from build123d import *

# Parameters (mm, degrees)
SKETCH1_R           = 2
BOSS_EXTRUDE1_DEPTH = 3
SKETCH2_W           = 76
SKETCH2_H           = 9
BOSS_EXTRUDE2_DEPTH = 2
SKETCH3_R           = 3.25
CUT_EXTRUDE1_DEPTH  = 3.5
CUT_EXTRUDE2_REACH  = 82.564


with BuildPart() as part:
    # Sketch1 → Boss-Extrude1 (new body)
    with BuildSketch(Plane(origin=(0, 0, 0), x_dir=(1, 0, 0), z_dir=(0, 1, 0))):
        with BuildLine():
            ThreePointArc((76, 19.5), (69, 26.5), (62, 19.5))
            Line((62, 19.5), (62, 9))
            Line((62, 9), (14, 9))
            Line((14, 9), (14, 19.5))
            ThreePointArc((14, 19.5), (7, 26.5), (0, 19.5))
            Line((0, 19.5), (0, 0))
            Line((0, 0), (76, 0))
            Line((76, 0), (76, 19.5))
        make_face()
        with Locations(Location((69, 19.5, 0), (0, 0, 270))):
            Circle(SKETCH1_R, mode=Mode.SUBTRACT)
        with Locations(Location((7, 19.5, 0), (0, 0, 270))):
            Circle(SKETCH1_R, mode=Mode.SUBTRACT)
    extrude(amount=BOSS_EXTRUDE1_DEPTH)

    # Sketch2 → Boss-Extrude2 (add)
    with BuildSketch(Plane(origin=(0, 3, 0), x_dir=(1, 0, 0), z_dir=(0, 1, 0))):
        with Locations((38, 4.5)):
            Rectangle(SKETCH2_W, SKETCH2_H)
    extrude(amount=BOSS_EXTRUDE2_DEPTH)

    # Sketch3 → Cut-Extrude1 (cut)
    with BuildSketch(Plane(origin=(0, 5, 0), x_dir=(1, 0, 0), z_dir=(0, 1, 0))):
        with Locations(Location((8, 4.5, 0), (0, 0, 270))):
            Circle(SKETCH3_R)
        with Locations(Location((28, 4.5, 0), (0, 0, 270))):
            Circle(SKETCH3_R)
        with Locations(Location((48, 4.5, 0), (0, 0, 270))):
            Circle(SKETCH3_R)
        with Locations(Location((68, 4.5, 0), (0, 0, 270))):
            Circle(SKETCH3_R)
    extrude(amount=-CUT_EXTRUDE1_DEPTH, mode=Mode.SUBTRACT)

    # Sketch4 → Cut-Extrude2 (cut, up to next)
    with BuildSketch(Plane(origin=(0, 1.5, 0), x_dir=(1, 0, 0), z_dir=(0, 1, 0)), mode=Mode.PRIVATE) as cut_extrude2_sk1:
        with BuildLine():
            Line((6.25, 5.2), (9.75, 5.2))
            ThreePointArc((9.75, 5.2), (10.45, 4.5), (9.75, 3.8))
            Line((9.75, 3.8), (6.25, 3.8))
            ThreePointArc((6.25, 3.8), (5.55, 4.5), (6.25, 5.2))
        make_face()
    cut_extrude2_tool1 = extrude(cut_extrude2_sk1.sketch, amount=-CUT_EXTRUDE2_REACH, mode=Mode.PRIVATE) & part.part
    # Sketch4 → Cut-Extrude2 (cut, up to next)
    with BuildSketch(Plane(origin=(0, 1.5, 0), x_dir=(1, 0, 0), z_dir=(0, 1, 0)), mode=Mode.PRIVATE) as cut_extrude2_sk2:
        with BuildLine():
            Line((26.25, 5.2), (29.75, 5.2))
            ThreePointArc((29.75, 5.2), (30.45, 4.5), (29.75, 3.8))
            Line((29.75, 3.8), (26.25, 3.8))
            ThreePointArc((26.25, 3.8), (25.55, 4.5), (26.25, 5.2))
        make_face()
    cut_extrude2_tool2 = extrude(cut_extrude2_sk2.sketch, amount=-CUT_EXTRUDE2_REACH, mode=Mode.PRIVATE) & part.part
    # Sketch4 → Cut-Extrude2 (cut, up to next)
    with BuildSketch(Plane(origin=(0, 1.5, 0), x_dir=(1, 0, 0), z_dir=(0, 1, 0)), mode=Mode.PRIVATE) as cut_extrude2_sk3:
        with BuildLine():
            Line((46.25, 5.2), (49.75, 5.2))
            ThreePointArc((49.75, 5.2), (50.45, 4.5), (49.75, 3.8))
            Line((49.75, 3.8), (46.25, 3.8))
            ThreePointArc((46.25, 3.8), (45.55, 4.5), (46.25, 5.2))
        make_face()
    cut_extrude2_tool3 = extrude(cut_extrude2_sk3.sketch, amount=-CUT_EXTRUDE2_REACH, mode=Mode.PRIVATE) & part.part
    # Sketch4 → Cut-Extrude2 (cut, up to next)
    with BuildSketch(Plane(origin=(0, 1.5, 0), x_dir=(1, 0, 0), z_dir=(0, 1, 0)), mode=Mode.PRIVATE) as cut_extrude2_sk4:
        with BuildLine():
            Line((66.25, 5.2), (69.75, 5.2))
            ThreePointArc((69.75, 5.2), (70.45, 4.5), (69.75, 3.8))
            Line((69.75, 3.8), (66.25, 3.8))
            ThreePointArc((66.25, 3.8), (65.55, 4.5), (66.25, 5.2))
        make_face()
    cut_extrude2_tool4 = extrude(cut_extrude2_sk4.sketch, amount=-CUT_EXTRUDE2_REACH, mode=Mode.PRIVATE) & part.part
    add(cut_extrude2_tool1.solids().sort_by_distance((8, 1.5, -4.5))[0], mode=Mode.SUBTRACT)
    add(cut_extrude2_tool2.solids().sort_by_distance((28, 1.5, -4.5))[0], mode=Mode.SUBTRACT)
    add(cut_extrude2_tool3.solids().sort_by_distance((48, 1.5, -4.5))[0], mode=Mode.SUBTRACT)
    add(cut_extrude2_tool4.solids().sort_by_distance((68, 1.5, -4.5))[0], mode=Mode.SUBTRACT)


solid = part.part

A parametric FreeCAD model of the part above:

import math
import FreeCAD as App
import Part
import Sketcher
from FreeCAD import Vector


def add_polygon(sketch, points):
    """Adds a closed chain of lines whose ends are joined by coincident constraints."""
    first, n = sketch.GeometryCount, len(points)
    for a, b in zip(points, points[1:] + points[:1]):
        sketch.addGeometry(Part.LineSegment(App.Vector(*a, 0), App.Vector(*b, 0)), False)
    for i in range(n):
        sketch.addConstraint(Sketcher.Constraint("Coincident", first + i, 2, first + (i + 1) % n, 1))

doc = App.newDocument("Part")
body = doc.addObject("PartDesign::Body", "Body")

sketch1 = body.newObject("Sketcher::SketchObject", "Sketch")
sketch1.AttachmentSupport = (doc.getObject("XZ_Plane"), [""])
sketch1.MapMode = "FlatFace"
sketch1.addGeometry(Part.ArcOfCircle(Part.Circle(Vector(69, -19.5, 0), Vector(0, 0, 1), 7), math.radians(180), math.radians(360)), False)
sketch1.addGeometry(Part.LineSegment(Vector(62, -19.5, 0), Vector(62, -9, 0)), False)
sketch1.addGeometry(Part.LineSegment(Vector(62, -9, 0), Vector(14, -9, 0)), False)
sketch1.addGeometry(Part.LineSegment(Vector(14, -9, 0), Vector(14, -19.5, 0)), False)
sketch1.addGeometry(Part.ArcOfCircle(Part.Circle(Vector(7, -19.5, 0), Vector(0, 0, 1), 7), math.radians(180), math.radians(360)), False)
sketch1.addGeometry(Part.LineSegment(Vector(0, -19.5, 0), Vector(0, 0, 0)), False)
sketch1.addGeometry(Part.LineSegment(Vector(0, 0, 0), Vector(76, 0, 0)), False)
sketch1.addGeometry(Part.LineSegment(Vector(76, 0, 0), Vector(76, -19.5, 0)), False)
sketch1.addGeometry(Part.Circle(Vector(7, -19.5, 0), Vector(0, 0, 1), 2), False)
sketch1.addGeometry(Part.Circle(Vector(69, -19.5, 0), Vector(0, 0, 1), 2), False)
sketch1.addConstraint(Sketcher.Constraint("Tangent", 0, 1, 1, 1))
sketch1.addConstraint(Sketcher.Constraint("Coincident", 1, 2, 2, 1))
sketch1.addConstraint(Sketcher.Constraint("Coincident", 2, 2, 3, 1))
sketch1.addConstraint(Sketcher.Constraint("Tangent", 3, 2, 4, 2))
sketch1.addConstraint(Sketcher.Constraint("Tangent", 4, 1, 5, 1))
sketch1.addConstraint(Sketcher.Constraint("Coincident", 5, 2, 6, 1))
sketch1.addConstraint(Sketcher.Constraint("Coincident", 6, 2, 7, 1))
sketch1.addConstraint(Sketcher.Constraint("Tangent", 7, 2, 0, 2))
sketch1.addConstraint(Sketcher.Constraint("Vertical", 1))
sketch1.addConstraint(Sketcher.Constraint("Horizontal", 2))
sketch1.addConstraint(Sketcher.Constraint("Vertical", 3))
sketch1.addConstraint(Sketcher.Constraint("Vertical", 5))
sketch1.addConstraint(Sketcher.Constraint("Horizontal", 6))
sketch1.addConstraint(Sketcher.Constraint("Vertical", 7))
sketch1.addConstraint(Sketcher.Constraint("Coincident", 5, 2, -1, 1))
sketch1.addConstraint(Sketcher.Constraint("Coincident", 8, 3, 4, 3))
sketch1.addConstraint(Sketcher.Constraint("Coincident", 9, 3, 0, 3))
sketch1.addConstraint(Sketcher.Constraint("Equal", 0, 4))
sketch1.addConstraint(Sketcher.Constraint("Equal", 8, 9))
sketch1.addConstraint(Sketcher.Constraint("Horizontal", 0, 3, 4, 3))
sketch1.addConstraint(Sketcher.Constraint("Diameter", 8, 4.0))
sketch1.addConstraint(Sketcher.Constraint("Radius", 0, 7.0))
sketch1.addConstraint(Sketcher.Constraint("DistanceX", 2, 2, 2, 1, 48.0))
sketch1.addConstraint(Sketcher.Constraint("DistanceY", 1, 1, 1, 2, 10.5))
sketch1.addConstraint(Sketcher.Constraint("DistanceY", 5, 1, 5, 2, 19.5))
pad1 = body.newObject("PartDesign::Pad", "Pad")
pad1.Profile = sketch1
pad1.Length = 3
pad1.Reversed = True

sketch2 = body.newObject("Sketcher::SketchObject", "Sketch001")
sketch2.AttachmentSupport = (doc.getObject("XZ_Plane"), [""])
sketch2.MapMode = "FlatFace"
sketch2.AttachmentOffset = App.Placement(Vector(0, 0, -3), App.Rotation())
add_polygon(sketch2, [(0, -9), (0, 0), (76, 0), (76, -9)])
sketch2.addConstraint(Sketcher.Constraint("Vertical", 0))
sketch2.addConstraint(Sketcher.Constraint("Horizontal", 1))
sketch2.addConstraint(Sketcher.Constraint("Vertical", 2))
sketch2.addConstraint(Sketcher.Constraint("Horizontal", 3))
sketch2.addConstraint(Sketcher.Constraint("Coincident", 0, 2, -1, 1))
sketch2.addConstraint(Sketcher.Constraint("DistanceX", 1, 1, 1, 2, 76.0))
sketch2.addConstraint(Sketcher.Constraint("DistanceY", 0, 1, 0, 2, 9.0))
pad2 = body.newObject("PartDesign::Pad", "Pad001")
pad2.Profile = sketch2
pad2.Length = 2
pad2.Reversed = True

sketch3 = body.newObject("Sketcher::SketchObject", "Sketch002")
sketch3.AttachmentSupport = (doc.getObject("XZ_Plane"), [""])
sketch3.MapMode = "FlatFace"
sketch3.AttachmentOffset = App.Placement(Vector(0, 0, -5), App.Rotation())
sketch3.addGeometry(Part.Circle(Vector(8, -4.5, 0), Vector(0, 0, 1), 3.2), False)
sketch3.addGeometry(Part.Circle(Vector(28, -4.5, 0), Vector(0, 0, 1), 3.2), False)
sketch3.addGeometry(Part.Circle(Vector(48, -4.5, 0), Vector(0, 0, 1), 3.2), False)
sketch3.addGeometry(Part.Circle(Vector(68, -4.5, 0), Vector(0, 0, 1), 3.2), False)
sketch3.addConstraint(Sketcher.Constraint("Equal", 0, 1))
sketch3.addConstraint(Sketcher.Constraint("Equal", 1, 2))
sketch3.addConstraint(Sketcher.Constraint("Equal", 2, 3))
sketch3.addConstraint(Sketcher.Constraint("Horizontal", 0, 3, 1, 3))
sketch3.addConstraint(Sketcher.Constraint("Horizontal", 1, 3, 2, 3))
sketch3.addConstraint(Sketcher.Constraint("Horizontal", 2, 3, 3, 3))
sketch3.addConstraint(Sketcher.Constraint("Diameter", 0, 6.5))
sketch3.addConstraint(Sketcher.Constraint("DistanceX", -1, 1, 0, 3, 8.0))
sketch3.addConstraint(Sketcher.Constraint("DistanceX", -1, 1, 1, 3, 28.0))
sketch3.addConstraint(Sketcher.Constraint("DistanceX", -1, 1, 2, 3, 48.0))
sketch3.addConstraint(Sketcher.Constraint("DistanceX", -1, 1, 3, 3, 68.0))
sketch3.addConstraint(Sketcher.Constraint("DistanceY", 0, 3, -1, 1, 4.5))
pocket1 = body.newObject("PartDesign::Pocket", "Pocket")
pocket1.Profile = sketch3
pocket1.Length = 3.5
pocket1.Reversed = True

sketch4 = body.newObject("Sketcher::SketchObject", "Sketch003")
sketch4.AttachmentSupport = (doc.getObject("XZ_Plane"), [""])
sketch4.MapMode = "FlatFace"
sketch4.AttachmentOffset = App.Placement(Vector(0, 0, -1.5), App.Rotation())
sketch4.addGeometry(Part.LineSegment(Vector(9.8, -5.2, 0), Vector(6.2, -5.2, 0)), False)
sketch4.addGeometry(Part.ArcOfCircle(Part.Circle(Vector(6.2, -4.5, 0), Vector(0, 0, 1), 0.7), math.radians(90), math.radians(270)), False)
sketch4.addGeometry(Part.LineSegment(Vector(6.2, -3.8, 0), Vector(9.8, -3.8, 0)), False)
sketch4.addGeometry(Part.ArcOfCircle(Part.Circle(Vector(9.8, -4.5, 0), Vector(0, 0, 1), 0.7), math.radians(-90), math.radians(90)), False)
sketch4.addConstraint(Sketcher.Constraint("Tangent", 0, 2, 1, 2))
sketch4.addConstraint(Sketcher.Constraint("Tangent", 1, 1, 2, 1))
sketch4.addConstraint(Sketcher.Constraint("Tangent", 2, 2, 3, 2))
sketch4.addConstraint(Sketcher.Constraint("Tangent", 3, 1, 0, 1))
sketch4.addConstraint(Sketcher.Constraint("Horizontal", 0))
sketch4.addConstraint(Sketcher.Constraint("Horizontal", 2))
sketch4.addConstraint(Sketcher.Constraint("Radius", 1, 0.7))
sketch4.addConstraint(Sketcher.Constraint("DistanceX", 0, 2, 0, 1, 3.5))
sketch4.addConstraint(Sketcher.Constraint("DistanceY", 1, 3, -1, 1, 4.5))
sketch4.addConstraint(Sketcher.Constraint("DistanceX", -1, 1, 1, 3, 6.25))
pocket2 = body.newObject("PartDesign::Pocket", "Pocket001")
pocket2.Profile = sketch4
pocket2.Type = "UpToFirst"
pocket2.Reversed = True

sketch5 = body.newObject("Sketcher::SketchObject", "Sketch004")
sketch5.AttachmentSupport = (doc.getObject("XZ_Plane"), [""])
sketch5.MapMode = "FlatFace"
sketch5.AttachmentOffset = App.Placement(Vector(0, 0, -1.5), App.Rotation())
sketch5.addGeometry(Part.LineSegment(Vector(29.8, -5.2, 0), Vector(26.2, -5.2, 0)), False)
sketch5.addGeometry(Part.ArcOfCircle(Part.Circle(Vector(26.2, -4.5, 0), Vector(0, 0, 1), 0.7), math.radians(90), math.radians(270)), False)
sketch5.addGeometry(Part.LineSegment(Vector(26.2, -3.8, 0), Vector(29.8, -3.8, 0)), False)
sketch5.addGeometry(Part.ArcOfCircle(Part.Circle(Vector(29.8, -4.5, 0), Vector(0, 0, 1), 0.7), math.radians(-90), math.radians(90)), False)
sketch5.addConstraint(Sketcher.Constraint("Tangent", 0, 2, 1, 2))
sketch5.addConstraint(Sketcher.Constraint("Tangent", 1, 1, 2, 1))
sketch5.addConstraint(Sketcher.Constraint("Tangent", 2, 2, 3, 2))
sketch5.addConstraint(Sketcher.Constraint("Tangent", 3, 1, 0, 1))
sketch5.addConstraint(Sketcher.Constraint("Horizontal", 0))
sketch5.addConstraint(Sketcher.Constraint("Horizontal", 2))
sketch5.addConstraint(Sketcher.Constraint("Radius", 1, 0.7))
sketch5.addConstraint(Sketcher.Constraint("DistanceX", 0, 2, 0, 1, 3.5))
sketch5.addConstraint(Sketcher.Constraint("DistanceY", 1, 3, -1, 1, 4.5))
sketch5.addConstraint(Sketcher.Constraint("DistanceX", -1, 1, 1, 3, 26.25))
pocket3 = body.newObject("PartDesign::Pocket", "Pocket002")
pocket3.Profile = sketch5
pocket3.Type = "UpToFirst"
pocket3.Reversed = True

sketch6 = body.newObject("Sketcher::SketchObject", "Sketch005")
sketch6.AttachmentSupport = (doc.getObject("XZ_Plane"), [""])
sketch6.MapMode = "FlatFace"
sketch6.AttachmentOffset = App.Placement(Vector(0, 0, -1.5), App.Rotation())
sketch6.addGeometry(Part.LineSegment(Vector(49.8, -5.2, 0), Vector(46.2, -5.2, 0)), False)
sketch6.addGeometry(Part.ArcOfCircle(Part.Circle(Vector(46.2, -4.5, 0), Vector(0, 0, 1), 0.7), math.radians(90), math.radians(270)), False)
sketch6.addGeometry(Part.LineSegment(Vector(46.2, -3.8, 0), Vector(49.8, -3.8, 0)), False)
sketch6.addGeometry(Part.ArcOfCircle(Part.Circle(Vector(49.8, -4.5, 0), Vector(0, 0, 1), 0.7), math.radians(-90), math.radians(90)), False)
sketch6.addConstraint(Sketcher.Constraint("Tangent", 0, 2, 1, 2))
sketch6.addConstraint(Sketcher.Constraint("Tangent", 1, 1, 2, 1))
sketch6.addConstraint(Sketcher.Constraint("Tangent", 2, 2, 3, 2))
sketch6.addConstraint(Sketcher.Constraint("Tangent", 3, 1, 0, 1))
sketch6.addConstraint(Sketcher.Constraint("Horizontal", 0))
sketch6.addConstraint(Sketcher.Constraint("Horizontal", 2))
sketch6.addConstraint(Sketcher.Constraint("Radius", 1, 0.7))
sketch6.addConstraint(Sketcher.Constraint("DistanceX", 0, 2, 0, 1, 3.5))
sketch6.addConstraint(Sketcher.Constraint("DistanceY", 1, 3, -1, 1, 4.5))
sketch6.addConstraint(Sketcher.Constraint("DistanceX", -1, 1, 1, 3, 46.25))
pocket4 = body.newObject("PartDesign::Pocket", "Pocket003")
pocket4.Profile = sketch6
pocket4.Type = "UpToFirst"
pocket4.Reversed = True

sketch7 = body.newObject("Sketcher::SketchObject", "Sketch006")
sketch7.AttachmentSupport = (doc.getObject("XZ_Plane"), [""])
sketch7.MapMode = "FlatFace"
sketch7.AttachmentOffset = App.Placement(Vector(0, 0, -1.5), App.Rotation())
sketch7.addGeometry(Part.LineSegment(Vector(69.8, -5.2, 0), Vector(66.2, -5.2, 0)), False)
sketch7.addGeometry(Part.ArcOfCircle(Part.Circle(Vector(66.2, -4.5, 0), Vector(0, 0, 1), 0.7), math.radians(90), math.radians(270)), False)
sketch7.addGeometry(Part.LineSegment(Vector(66.2, -3.8, 0), Vector(69.8, -3.8, 0)), False)
sketch7.addGeometry(Part.ArcOfCircle(Part.Circle(Vector(69.8, -4.5, 0), Vector(0, 0, 1), 0.7), math.radians(-90), math.radians(90)), False)
sketch7.addConstraint(Sketcher.Constraint("Tangent", 0, 2, 1, 2))
sketch7.addConstraint(Sketcher.Constraint("Tangent", 1, 1, 2, 1))
sketch7.addConstraint(Sketcher.Constraint("Tangent", 2, 2, 3, 2))
sketch7.addConstraint(Sketcher.Constraint("Tangent", 3, 1, 0, 1))
sketch7.addConstraint(Sketcher.Constraint("Horizontal", 0))
sketch7.addConstraint(Sketcher.Constraint("Horizontal", 2))
sketch7.addConstraint(Sketcher.Constraint("Radius", 1, 0.7))
sketch7.addConstraint(Sketcher.Constraint("DistanceX", 0, 2, 0, 1, 3.5))
sketch7.addConstraint(Sketcher.Constraint("DistanceY", 1, 3, -1, 1, 4.5))
sketch7.addConstraint(Sketcher.Constraint("DistanceX", -1, 1, 1, 3, 66.25))
pocket5 = body.newObject("PartDesign::Pocket", "Pocket004")
pocket5.Profile = sketch7
pocket5.Type = "UpToFirst"
pocket5.Reversed = True

doc.recompute()
